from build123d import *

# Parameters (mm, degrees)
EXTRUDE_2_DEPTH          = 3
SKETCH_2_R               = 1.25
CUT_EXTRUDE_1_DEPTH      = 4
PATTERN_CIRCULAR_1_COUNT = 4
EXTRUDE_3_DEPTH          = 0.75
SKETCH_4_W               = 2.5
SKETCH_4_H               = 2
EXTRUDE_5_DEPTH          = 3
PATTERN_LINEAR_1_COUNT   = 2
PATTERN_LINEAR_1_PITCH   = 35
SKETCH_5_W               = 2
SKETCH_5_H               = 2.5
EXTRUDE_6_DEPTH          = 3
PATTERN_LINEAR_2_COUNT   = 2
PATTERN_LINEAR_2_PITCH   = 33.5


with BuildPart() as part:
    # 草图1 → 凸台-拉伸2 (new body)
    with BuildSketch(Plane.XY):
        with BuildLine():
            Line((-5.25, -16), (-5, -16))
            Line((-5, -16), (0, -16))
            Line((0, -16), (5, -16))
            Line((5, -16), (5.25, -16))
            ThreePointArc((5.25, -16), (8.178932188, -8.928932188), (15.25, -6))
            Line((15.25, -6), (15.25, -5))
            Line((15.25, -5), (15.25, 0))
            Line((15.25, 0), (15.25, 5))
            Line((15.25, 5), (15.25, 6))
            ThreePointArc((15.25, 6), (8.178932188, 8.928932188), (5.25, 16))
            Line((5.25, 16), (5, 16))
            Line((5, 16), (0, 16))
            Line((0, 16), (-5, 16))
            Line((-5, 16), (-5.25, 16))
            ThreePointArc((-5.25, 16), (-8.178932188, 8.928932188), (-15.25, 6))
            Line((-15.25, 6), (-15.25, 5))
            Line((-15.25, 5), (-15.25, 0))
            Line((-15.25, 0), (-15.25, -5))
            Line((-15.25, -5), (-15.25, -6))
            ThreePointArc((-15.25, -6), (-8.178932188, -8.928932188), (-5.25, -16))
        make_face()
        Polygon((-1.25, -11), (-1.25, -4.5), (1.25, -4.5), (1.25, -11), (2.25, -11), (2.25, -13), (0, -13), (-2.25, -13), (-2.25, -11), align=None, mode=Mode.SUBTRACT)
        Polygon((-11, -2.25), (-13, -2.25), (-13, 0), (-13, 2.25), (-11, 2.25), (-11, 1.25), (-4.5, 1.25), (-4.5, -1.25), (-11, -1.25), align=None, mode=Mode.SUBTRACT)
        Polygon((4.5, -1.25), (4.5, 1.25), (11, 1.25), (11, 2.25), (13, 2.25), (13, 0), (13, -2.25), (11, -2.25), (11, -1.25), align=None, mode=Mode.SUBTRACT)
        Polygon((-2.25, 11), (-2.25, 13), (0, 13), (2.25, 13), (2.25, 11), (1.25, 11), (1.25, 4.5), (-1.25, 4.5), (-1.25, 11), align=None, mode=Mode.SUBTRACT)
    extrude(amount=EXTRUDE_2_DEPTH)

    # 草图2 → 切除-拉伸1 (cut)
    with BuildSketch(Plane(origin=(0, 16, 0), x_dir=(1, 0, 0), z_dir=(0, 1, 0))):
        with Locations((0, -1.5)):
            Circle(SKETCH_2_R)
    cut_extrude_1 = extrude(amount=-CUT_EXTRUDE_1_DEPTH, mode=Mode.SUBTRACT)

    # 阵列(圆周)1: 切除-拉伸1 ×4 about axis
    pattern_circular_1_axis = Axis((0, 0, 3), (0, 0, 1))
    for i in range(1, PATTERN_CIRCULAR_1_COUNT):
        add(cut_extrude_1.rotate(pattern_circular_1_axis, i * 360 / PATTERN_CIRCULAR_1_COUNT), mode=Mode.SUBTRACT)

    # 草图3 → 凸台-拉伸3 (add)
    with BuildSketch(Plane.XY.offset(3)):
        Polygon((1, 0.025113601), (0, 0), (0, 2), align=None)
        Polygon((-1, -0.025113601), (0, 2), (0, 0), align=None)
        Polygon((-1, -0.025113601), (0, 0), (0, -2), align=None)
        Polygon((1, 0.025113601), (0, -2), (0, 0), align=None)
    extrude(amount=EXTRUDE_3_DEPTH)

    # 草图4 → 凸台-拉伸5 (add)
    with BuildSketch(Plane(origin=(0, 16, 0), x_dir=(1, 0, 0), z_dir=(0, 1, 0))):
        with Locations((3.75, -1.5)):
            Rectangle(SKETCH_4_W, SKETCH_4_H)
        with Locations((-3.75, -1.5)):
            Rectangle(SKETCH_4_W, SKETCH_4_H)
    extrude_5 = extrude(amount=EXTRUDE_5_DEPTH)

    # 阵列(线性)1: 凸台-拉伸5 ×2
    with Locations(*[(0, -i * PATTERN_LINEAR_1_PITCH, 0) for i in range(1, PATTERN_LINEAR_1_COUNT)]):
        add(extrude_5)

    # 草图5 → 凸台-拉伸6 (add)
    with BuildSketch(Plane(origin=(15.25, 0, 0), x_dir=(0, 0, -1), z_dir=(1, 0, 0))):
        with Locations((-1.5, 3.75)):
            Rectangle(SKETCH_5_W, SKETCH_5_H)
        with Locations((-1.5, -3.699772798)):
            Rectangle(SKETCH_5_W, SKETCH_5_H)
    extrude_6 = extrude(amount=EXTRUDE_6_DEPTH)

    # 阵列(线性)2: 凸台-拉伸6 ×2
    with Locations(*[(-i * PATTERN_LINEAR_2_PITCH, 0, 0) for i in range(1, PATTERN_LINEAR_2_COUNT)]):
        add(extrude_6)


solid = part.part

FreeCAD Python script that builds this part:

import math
import FreeCAD as App
import Part
import Sketcher

V = App.Vector


def add_polygon(sketch, points):
    """Adds a closed chain of lines whose ends are joined by coincident constraints."""
    first, n = sketch.GeometryCount, len(points)
    for a, b in zip(points, points[1:] + points[:1]):
        sketch.addGeometry(Part.LineSegment(App.Vector(*a, 0), App.Vector(*b, 0)), False)
    for i in range(n):
        sketch.addConstraint(Sketcher.Constraint("Coincident", first + i, 2, first + (i + 1) % n, 1))

doc = App.newDocument("Part")
body = doc.addObject("PartDesign::Body", "Body")

sketch1 = body.newObject("Sketcher::SketchObject", "Sketch")
sketch1.AttachmentSupport = (doc.getObject("XY_Plane"), [""])
sketch1.MapMode = "FlatFace"
sketch1.addGeometry(Part.LineSegment(V(-5.2, -16, 0), V(5.2, -16, 0)), False)
sketch1.addGeometry(Part.ArcOfCircle(Part.Circle(V(15.2, -16, 0), V(0, 0, 1), 10), math.radians(90), math.radians(180)), False)
sketch1.addGeometry(Part.LineSegment(V(15.2, -6, 0), V(15.2, 6, 0)), False)
sketch1.addGeometry(Part.ArcOfCircle(Part.Circle(V(15.2, 16, 0), V(0, 0, 1), 10), math.radians(180), math.radians(270)), False)
sketch1.addGeometry(Part.LineSegment(V(5.2, 16, 0), V(-5.2, 16, 0)), False)
sketch1.addGeometry(Part.ArcOfCircle(Part.Circle(V(-15.2, 16, 0), V(0, 0, 1), 10), math.radians(-90), math.radians(0)), False)
sketch1.addGeometry(Part.LineSegment(V(-15.2, 6, 0), V(-15.2, -6, 0)), False)
sketch1.addGeometry(Part.ArcOfCircle(Part.Circle(V(-15.2, -16, 0), V(0, 0, 1), 10), math.radians(0), math.radians(90)), False)
add_polygon(sketch1, [(-2.2, -11), (-1.2, -11), (-1.2, -4.5), (1.2, -4.5), (1.2, -11), (2.2, -11), (2.2, -13), (-2.2, -13)])
add_polygon(sketch1, [(-11, -1.2), (-11, -2.2), (-13, -2.2), (-13, 2.2), (-11, 2.2), (-11, 1.2), (-4.5, 1.2), (-4.5, -1.2)])
add_polygon(sketch1, [(11, -1.2), (4.5, -1.2), (4.5, 1.2), (11, 1.2), (11, 2.2), (13, 2.2), (13, -2.2), (11, -2.2)])
add_polygon(sketch1, [(-1.2, 11), (-2.2, 11), (-2.2, 13), (2.2, 13), (2.2, 11), (1.2, 11), (1.2, 4.5), (-1.2, 4.5)])
sketch1.addConstraint(Sketcher.Constraint("Coincident", 0, 2, 1, 2))
sketch1.addConstraint(Sketcher.Constraint("Coincident", 1, 1, 2, 1))
sketch1.addConstraint(Sketcher.Constraint("Coincident", 2, 2, 3, 2))
sketch1.addConstraint(Sketcher.Constraint("Coincident", 3, 1, 4, 1))
sketch1.addConstraint(Sketcher.Constraint("Coincident", 4, 2, 5, 2))
sketch1.addConstraint(Sketcher.Constraint("Coincident", 5, 1, 6, 1))
sketch1.addConstraint(Sketcher.Constraint("Coincident", 6, 2, 7, 2))
sketch1.addConstraint(Sketcher.Constraint("Coincident", 7, 1, 0, 1))
sketch1.addConstraint(Sketcher.Constraint("Horizontal", 0))
sketch1.addConstraint(Sketcher.Constraint("Vertical", 2))
sketch1.addConstraint(Sketcher.Constraint("Horizontal", 4))
sketch1.addConstraint(Sketcher.Constraint("Vertical", 6))
sketch1.addConstraint(Sketcher.Constraint("Horizontal", 8))
sketch1.addConstraint(Sketcher.Constraint("Vertical", 9))
sketch1.addConstraint(Sketcher.Constraint("Horizontal", 10))
sketch1.addConstraint(Sketcher.Constraint("Vertical", 11))
sketch1.addConstraint(Sketcher.Constraint("Horizontal", 12))
sketch1.addConstraint(Sketcher.Constraint("Vertical", 13))
sketch1.addConstraint(Sketcher.Constraint("Horizontal", 14))
sketch1.addConstraint(Sketcher.Constraint("Vertical", 15))
sketch1.addConstraint(Sketcher.Constraint("Vertical", 16))
sketch1.addConstraint(Sketcher.Constraint("Horizontal", 17))
sketch1.addConstraint(Sketcher.Constraint("Vertical", 18))
sketch1.addConstraint(Sketcher.Constraint("Horizontal", 19))
sketch1.addConstraint(Sketcher.Constraint("Vertical", 20))
sketch1.addConstraint(Sketcher.Constraint("Horizontal", 21))
sketch1.addConstraint(Sketcher.Constraint("Vertical", 22))
sketch1.addConstraint(Sketcher.Constraint("Horizontal", 23))
sketch1.addConstraint(Sketcher.Constraint("Horizontal", 24))
sketch1.addConstraint(Sketcher.Constraint("Vertical", 25))
sketch1.addConstraint(Sketcher.Constraint("Horizontal", 26))
sketch1.addConstraint(Sketcher.Constraint("Vertical", 27))
sketch1.addConstraint(Sketcher.Constraint("Horizontal", 28))
sketch1.addConstraint(Sketcher.Constraint("Vertical", 29))
sketch1.addConstraint(Sketcher.Constraint("Horizontal", 30))
sketch1.addConstraint(Sketcher.Constraint("Vertical", 31))
sketch1.addConstraint(Sketcher.Constraint("Horizontal", 32))
sketch1.addConstraint(Sketcher.Constraint("Vertical", 33))
sketch1.addConstraint(Sketcher.Constraint("Horizontal", 34))
sketch1.addConstraint(Sketcher.Constraint("Vertical", 35))
sketch1.addConstraint(Sketcher.Constraint("Horizontal", 36))
sketch1.addConstraint(Sketcher.Constraint("Vertical", 37))
sketch1.addConstraint(Sketcher.Constraint("Horizontal", 38))
sketch1.addConstraint(Sketcher.Constraint("Vertical", 39))
sketch1.addConstraint(Sketcher.Constraint("Equal", 1, 3))
sketch1.addConstraint(Sketcher.Constraint("Equal", 3, 5))
sketch1.addConstraint(Sketcher.Constraint("Equal", 5, 7))
sketch1.addConstraint(Sketcher.Constraint("Symmetric", 1, 3, 5, 3, -1, 1))
sketch1.addConstraint(Sketcher.Constraint("Symmetric", 3, 3, 7, 3, -1, 1))
sketch1.addConstraint(Sketcher.Constraint("Symmetric", 21, 2, 24, 2, -1, 1))
sketch1.addConstraint(Sketcher.Constraint("Symmetric", 23, 2, 26, 2, -1, 1))
sketch1.addConstraint(Sketcher.Constraint("Symmetric", 17, 2, 28, 2, -1, 1))
sketch1.addConstraint(Sketcher.Constraint("Symmetric", 19, 2, 30, 2, -1, 1))
sketch1.addConstraint(Sketcher.Constraint("Symmetric", 12, 2, 32, 2, -1, 1))
sketch1.addConstraint(Sketcher.Constraint("Symmetric", 14, 2, 34, 2, -1, 1))
sketch1.addConstraint(Sketcher.Constraint("Symmetric", 8, 2, 36, 2, -1, 1))
sketch1.addConstraint(Sketcher.Constraint("Symmetric", 10, 2, 38, 2, -1, 1))
sketch1.addConstraint(Sketcher.Constraint("Symmetric", 3, 3, 5, 3, -2))
sketch1.addConstraint(Sketcher.Constraint("Symmetric", 8, 2, 11, 2, -2))
sketch1.addConstraint(Sketcher.Constraint("Symmetric", 20, 2, 26, 2, -2))
sketch1.addConstraint(Sketcher.Constraint("Horizontal", 7, 3, 0, 2))
sketch1.addConstraint(Sketcher.Constraint("Horizontal", 5, 3, 3, 1))
sketch1.addConstraint(Sketcher.Constraint("Horizontal", 19, 2, 27, 2))
sketch1.addConstraint(Sketcher.Constraint("Vertical", 3, 3, 1, 1))
sketch1.addConstraint(Sketcher.Constraint("Vertical", 7, 3, 5, 1))
sketch1.addConstraint(Sketcher.Constraint("Vertical", 15, 2, 32, 2))
sketch1.addConstraint(Sketcher.Constraint("Equal", 26, 9))
sketch1.addConstraint(Sketcher.Constraint("Equal", 30, 13))
sketch1.addConstraint(Sketcher.Constraint("Equal", 36, 16))
sketch1.addConstraint(Sketcher.Constraint("Equal", 34, 18))
sketch1.addConstraint(Sketcher.Constraint("Radius", 1, 10.0))
sketch1.addConstraint(Sketcher.Constraint("DistanceX", 8, 1, 8, 2, 1.0))
sketch1.addConstraint(Sketcher.Constraint("DistanceX", 17, 2, 17, 1, 2.0))
sketch1.addConstraint(Sketcher.Constraint("DistanceY", 2, 1, 2, 2, 12.0))
sketch1.addConstraint(Sketcher.Constraint("DistanceX", 0, 1, 0, 2, 10.5))
sketch1.addConstraint(Sketcher.Constraint("DistanceX", 10, 1, 10, 2, 2.5))
sketch1.addConstraint(Sketcher.Constraint("DistanceX", 21, 1, 21, 2, 6.5))
sketch1.addConstraint(Sketcher.Constraint("DistanceY", 8, 2, -1, 1, 11.0))
sketch1.addConstraint(Sketcher.Constraint("DistanceX", 16, 2, -1, 1, 11.0))
pad1 = body.newObject("PartDesign::Pad", "Pad")
pad1.Profile = sketch1
pad1.Length = 3

sketch2 = body.newObject("Sketcher::SketchObject", "Sketch001")
sketch2.AttachmentSupport = (doc.getObject("XZ_Plane"), [""])
sketch2.MapMode = "FlatFace"
sketch2.AttachmentOffset = App.Placement(V(0, 0, -16), App.Rotation())
sketch2.addGeometry(Part.Circle(V(0, 1.5, 0), V(0, 0, 1), 1.2), False)
sketch2.addConstraint(Sketcher.Constraint("PointOnObject", 0, 3, -2))
sketch2.addConstraint(Sketcher.Constraint("Diameter", 0, 2.5))
sketch2.addConstraint(Sketcher.Constraint("DistanceY", -1, 1, 0, 3, 1.5))
pocket1 = body.newObject("PartDesign::Pocket", "Pocket")
pocket1.Profile = sketch2
pocket1.Length = 4
pocket1.Reversed = True
doc.recompute()

polarpattern = body.newObject("PartDesign::PolarPattern", "PolarPattern")
polarpattern.Originals = [pocket1]
polarpattern.Axis = (doc.getObject("Z_Axis"), [""])
polarpattern.Angle = 360
polarpattern.Occurrences = 4
body.Tip = polarpattern

sketch3 = body.newObject("Sketcher::SketchObject", "Sketch002")
sketch3.AttachmentSupport = (doc.getObject("XY_Plane"), [""])
sketch3.MapMode = "FlatFace"
sketch3.AttachmentOffset = App.Placement(V(0, 0, 3), App.Rotation())
add_polygon(sketch3, [(-1, 0), (0, -2), (1, 0), (0, 2)])
sketch3.addConstraint(Sketcher.Constraint("Symmetric", 0, 2, 2, 2, -1, 1))
sketch3.addConstraint(Sketcher.Constraint("Symmetric", 1, 2, 3, 2, -1, 1))
sketch3.addConstraint(Sketcher.Constraint("PointOnObject", 0, 2, -2))
sketch3.addConstraint(Sketcher.Constraint("DistanceY", 0, 2, -1, 1, 2.0))
sketch3.addConstraint(Sketcher.Constraint("DistanceX", -1, 1, 1, 2, 1.0))
sketch3.addConstraint(Sketcher.Constraint("Distance", 1, 2.258558))
pad2 = body.newObject("PartDesign::Pad", "Pad001")
pad2.Profile = sketch3
pad2.Length = 0.75

sketch4 = body.newObject("Sketcher::SketchObject", "Sketch003")
sketch4.AttachmentSupport = (doc.getObject("XZ_Plane"), [""])
sketch4.MapMode = "FlatFace"
sketch4.AttachmentOffset = App.Placement(V(0, 0, -16), App.Rotation())
add_polygon(sketch4, [(2.5, 0.5), (2.5, 2.5), (5, 2.5), (5, 0.5)])
add_polygon(sketch4, [(-5, 0.5), (-5, 2.5), (-2.5, 2.5), (-2.5, 0.5)])
sketch4.addConstraint(Sketcher.Constraint("Vertical", 0))
sketch4.addConstraint(Sketcher.Constraint("Horizontal", 1))
sketch4.addConstraint(Sketcher.Constraint("Vertical", 2))
sketch4.addConstraint(Sketcher.Constraint("Horizontal", 3))
sketch4.addConstraint(Sketcher.Constraint("Vertical", 4))
sketch4.addConstraint(Sketcher.Constraint("Horizontal", 5))
sketch4.addConstraint(Sketcher.Constraint("Vertical", 6))
sketch4.addConstraint(Sketcher.Constraint("Horizontal", 7))
sketch4.addConstraint(Sketcher.Constraint("Symmetric", 1, 2, 4, 2, -2))
sketch4.addConstraint(Sketcher.Constraint("Symmetric", 3, 2, 6, 2, -2))
sketch4.addConstraint(Sketcher.Constraint("DistanceY", 0, 1, 0, 2, 2.0))
sketch4.addConstraint(Sketcher.Constraint("DistanceX", 1, 1, 1, 2, 2.5))
sketch4.addConstraint(Sketcher.Constraint("DistanceX", -1, 1, 1, 2, 5.0))
sketch4.addConstraint(Sketcher.Constraint("DistanceY", -1, 1, 0, 2, 2.5))
pad3 = body.newObject("PartDesign::Pad", "Pad002")
pad3.Profile = sketch4
pad3.Length = 3
pad3.Reversed = True
doc.recompute()

linearpattern = body.newObject("PartDesign::LinearPattern", "LinearPattern")
linearpattern.Originals = [pad3]
linearpattern.Direction = (doc.getObject("Y_Axis"), [""])
linearpattern.Mode = "offset"
linearpattern.Offset = 35
linearpattern.Occurrences = 2
linearpattern.Reversed = True
body.Tip = linearpattern

sketch5 = body.newObject("Sketcher::SketchObject", "Sketch004")
sketch5.AttachmentSupport = (doc.getObject("YZ_Plane"), [""])
sketch5.MapMode = "FlatFace"
sketch5.AttachmentOffset = App.Placement(V(0, 0, 15.25), App.Rotation())
add_polygon(sketch5, [(5, 2.5), (2.5, 2.5), (2.5, 0.5), (5, 0.5)])
add_polygon(sketch5, [(-2.4, 2.5), (-4.9, 2.5), (-4.9, 0.5), (-2.4, 0.5)])
sketch5.addConstraint(Sketcher.Constraint("Horizontal", 0))
sketch5.addConstraint(Sketcher.Constraint("Vertical", 1))
sketch5.addConstraint(Sketcher.Constraint("Horizontal", 2))
sketch5.addConstraint(Sketcher.Constraint("Vertical", 3))
sketch5.addConstraint(Sketcher.Constraint("Horizontal", 4))
sketch5.addConstraint(Sketcher.Constraint("Vertical", 5))
sketch5.addConstraint(Sketcher.Constraint("Horizontal", 6))
sketch5.addConstraint(Sketcher.Constraint("Vertical", 7))
sketch5.addConstraint(Sketcher.Constraint("Horizontal", 3, 2, 4, 2))
sketch5.addConstraint(Sketcher.Constraint("Horizontal", 2, 2, 5, 2))
sketch5.addConstraint(Sketcher.Constraint("Equal", 2, 4))
sketch5.addConstraint(Sketcher.Constraint("DistanceY", 1, 2, 1, 1, 2.0))
sketch5.addConstraint(Sketcher.Constraint("DistanceX", 0, 2, 0, 1, 2.5))
sketch5.addConstraint(Sketcher.Constraint("DistanceX", -1, 1, 2, 2, 5.0))
sketch5.addConstraint(Sketcher.Constraint("DistanceY", -1, 1, 0, 2, 2.5))
sketch5.addConstraint(Sketcher.Constraint("DistanceX", 4, 2, -1, 1, 4.949773))
pad4 = body.newObject("PartDesign::Pad", "Pad003")
pad4.Profile = sketch5
pad4.Length = 3
doc.recompute()

linearpattern2 = body.newObject("PartDesign::LinearPattern", "LinearPattern001")
linearpattern2.Originals = [pad4]
linearpattern2.Direction = (doc.getObject("X_Axis"), [""])
linearpattern2.Mode = "offset"
linearpattern2.Offset = 33.5
linearpattern2.Occurrences = 2
linearpattern2.Reversed = True
body.Tip = linearpattern2

doc.recompute()
